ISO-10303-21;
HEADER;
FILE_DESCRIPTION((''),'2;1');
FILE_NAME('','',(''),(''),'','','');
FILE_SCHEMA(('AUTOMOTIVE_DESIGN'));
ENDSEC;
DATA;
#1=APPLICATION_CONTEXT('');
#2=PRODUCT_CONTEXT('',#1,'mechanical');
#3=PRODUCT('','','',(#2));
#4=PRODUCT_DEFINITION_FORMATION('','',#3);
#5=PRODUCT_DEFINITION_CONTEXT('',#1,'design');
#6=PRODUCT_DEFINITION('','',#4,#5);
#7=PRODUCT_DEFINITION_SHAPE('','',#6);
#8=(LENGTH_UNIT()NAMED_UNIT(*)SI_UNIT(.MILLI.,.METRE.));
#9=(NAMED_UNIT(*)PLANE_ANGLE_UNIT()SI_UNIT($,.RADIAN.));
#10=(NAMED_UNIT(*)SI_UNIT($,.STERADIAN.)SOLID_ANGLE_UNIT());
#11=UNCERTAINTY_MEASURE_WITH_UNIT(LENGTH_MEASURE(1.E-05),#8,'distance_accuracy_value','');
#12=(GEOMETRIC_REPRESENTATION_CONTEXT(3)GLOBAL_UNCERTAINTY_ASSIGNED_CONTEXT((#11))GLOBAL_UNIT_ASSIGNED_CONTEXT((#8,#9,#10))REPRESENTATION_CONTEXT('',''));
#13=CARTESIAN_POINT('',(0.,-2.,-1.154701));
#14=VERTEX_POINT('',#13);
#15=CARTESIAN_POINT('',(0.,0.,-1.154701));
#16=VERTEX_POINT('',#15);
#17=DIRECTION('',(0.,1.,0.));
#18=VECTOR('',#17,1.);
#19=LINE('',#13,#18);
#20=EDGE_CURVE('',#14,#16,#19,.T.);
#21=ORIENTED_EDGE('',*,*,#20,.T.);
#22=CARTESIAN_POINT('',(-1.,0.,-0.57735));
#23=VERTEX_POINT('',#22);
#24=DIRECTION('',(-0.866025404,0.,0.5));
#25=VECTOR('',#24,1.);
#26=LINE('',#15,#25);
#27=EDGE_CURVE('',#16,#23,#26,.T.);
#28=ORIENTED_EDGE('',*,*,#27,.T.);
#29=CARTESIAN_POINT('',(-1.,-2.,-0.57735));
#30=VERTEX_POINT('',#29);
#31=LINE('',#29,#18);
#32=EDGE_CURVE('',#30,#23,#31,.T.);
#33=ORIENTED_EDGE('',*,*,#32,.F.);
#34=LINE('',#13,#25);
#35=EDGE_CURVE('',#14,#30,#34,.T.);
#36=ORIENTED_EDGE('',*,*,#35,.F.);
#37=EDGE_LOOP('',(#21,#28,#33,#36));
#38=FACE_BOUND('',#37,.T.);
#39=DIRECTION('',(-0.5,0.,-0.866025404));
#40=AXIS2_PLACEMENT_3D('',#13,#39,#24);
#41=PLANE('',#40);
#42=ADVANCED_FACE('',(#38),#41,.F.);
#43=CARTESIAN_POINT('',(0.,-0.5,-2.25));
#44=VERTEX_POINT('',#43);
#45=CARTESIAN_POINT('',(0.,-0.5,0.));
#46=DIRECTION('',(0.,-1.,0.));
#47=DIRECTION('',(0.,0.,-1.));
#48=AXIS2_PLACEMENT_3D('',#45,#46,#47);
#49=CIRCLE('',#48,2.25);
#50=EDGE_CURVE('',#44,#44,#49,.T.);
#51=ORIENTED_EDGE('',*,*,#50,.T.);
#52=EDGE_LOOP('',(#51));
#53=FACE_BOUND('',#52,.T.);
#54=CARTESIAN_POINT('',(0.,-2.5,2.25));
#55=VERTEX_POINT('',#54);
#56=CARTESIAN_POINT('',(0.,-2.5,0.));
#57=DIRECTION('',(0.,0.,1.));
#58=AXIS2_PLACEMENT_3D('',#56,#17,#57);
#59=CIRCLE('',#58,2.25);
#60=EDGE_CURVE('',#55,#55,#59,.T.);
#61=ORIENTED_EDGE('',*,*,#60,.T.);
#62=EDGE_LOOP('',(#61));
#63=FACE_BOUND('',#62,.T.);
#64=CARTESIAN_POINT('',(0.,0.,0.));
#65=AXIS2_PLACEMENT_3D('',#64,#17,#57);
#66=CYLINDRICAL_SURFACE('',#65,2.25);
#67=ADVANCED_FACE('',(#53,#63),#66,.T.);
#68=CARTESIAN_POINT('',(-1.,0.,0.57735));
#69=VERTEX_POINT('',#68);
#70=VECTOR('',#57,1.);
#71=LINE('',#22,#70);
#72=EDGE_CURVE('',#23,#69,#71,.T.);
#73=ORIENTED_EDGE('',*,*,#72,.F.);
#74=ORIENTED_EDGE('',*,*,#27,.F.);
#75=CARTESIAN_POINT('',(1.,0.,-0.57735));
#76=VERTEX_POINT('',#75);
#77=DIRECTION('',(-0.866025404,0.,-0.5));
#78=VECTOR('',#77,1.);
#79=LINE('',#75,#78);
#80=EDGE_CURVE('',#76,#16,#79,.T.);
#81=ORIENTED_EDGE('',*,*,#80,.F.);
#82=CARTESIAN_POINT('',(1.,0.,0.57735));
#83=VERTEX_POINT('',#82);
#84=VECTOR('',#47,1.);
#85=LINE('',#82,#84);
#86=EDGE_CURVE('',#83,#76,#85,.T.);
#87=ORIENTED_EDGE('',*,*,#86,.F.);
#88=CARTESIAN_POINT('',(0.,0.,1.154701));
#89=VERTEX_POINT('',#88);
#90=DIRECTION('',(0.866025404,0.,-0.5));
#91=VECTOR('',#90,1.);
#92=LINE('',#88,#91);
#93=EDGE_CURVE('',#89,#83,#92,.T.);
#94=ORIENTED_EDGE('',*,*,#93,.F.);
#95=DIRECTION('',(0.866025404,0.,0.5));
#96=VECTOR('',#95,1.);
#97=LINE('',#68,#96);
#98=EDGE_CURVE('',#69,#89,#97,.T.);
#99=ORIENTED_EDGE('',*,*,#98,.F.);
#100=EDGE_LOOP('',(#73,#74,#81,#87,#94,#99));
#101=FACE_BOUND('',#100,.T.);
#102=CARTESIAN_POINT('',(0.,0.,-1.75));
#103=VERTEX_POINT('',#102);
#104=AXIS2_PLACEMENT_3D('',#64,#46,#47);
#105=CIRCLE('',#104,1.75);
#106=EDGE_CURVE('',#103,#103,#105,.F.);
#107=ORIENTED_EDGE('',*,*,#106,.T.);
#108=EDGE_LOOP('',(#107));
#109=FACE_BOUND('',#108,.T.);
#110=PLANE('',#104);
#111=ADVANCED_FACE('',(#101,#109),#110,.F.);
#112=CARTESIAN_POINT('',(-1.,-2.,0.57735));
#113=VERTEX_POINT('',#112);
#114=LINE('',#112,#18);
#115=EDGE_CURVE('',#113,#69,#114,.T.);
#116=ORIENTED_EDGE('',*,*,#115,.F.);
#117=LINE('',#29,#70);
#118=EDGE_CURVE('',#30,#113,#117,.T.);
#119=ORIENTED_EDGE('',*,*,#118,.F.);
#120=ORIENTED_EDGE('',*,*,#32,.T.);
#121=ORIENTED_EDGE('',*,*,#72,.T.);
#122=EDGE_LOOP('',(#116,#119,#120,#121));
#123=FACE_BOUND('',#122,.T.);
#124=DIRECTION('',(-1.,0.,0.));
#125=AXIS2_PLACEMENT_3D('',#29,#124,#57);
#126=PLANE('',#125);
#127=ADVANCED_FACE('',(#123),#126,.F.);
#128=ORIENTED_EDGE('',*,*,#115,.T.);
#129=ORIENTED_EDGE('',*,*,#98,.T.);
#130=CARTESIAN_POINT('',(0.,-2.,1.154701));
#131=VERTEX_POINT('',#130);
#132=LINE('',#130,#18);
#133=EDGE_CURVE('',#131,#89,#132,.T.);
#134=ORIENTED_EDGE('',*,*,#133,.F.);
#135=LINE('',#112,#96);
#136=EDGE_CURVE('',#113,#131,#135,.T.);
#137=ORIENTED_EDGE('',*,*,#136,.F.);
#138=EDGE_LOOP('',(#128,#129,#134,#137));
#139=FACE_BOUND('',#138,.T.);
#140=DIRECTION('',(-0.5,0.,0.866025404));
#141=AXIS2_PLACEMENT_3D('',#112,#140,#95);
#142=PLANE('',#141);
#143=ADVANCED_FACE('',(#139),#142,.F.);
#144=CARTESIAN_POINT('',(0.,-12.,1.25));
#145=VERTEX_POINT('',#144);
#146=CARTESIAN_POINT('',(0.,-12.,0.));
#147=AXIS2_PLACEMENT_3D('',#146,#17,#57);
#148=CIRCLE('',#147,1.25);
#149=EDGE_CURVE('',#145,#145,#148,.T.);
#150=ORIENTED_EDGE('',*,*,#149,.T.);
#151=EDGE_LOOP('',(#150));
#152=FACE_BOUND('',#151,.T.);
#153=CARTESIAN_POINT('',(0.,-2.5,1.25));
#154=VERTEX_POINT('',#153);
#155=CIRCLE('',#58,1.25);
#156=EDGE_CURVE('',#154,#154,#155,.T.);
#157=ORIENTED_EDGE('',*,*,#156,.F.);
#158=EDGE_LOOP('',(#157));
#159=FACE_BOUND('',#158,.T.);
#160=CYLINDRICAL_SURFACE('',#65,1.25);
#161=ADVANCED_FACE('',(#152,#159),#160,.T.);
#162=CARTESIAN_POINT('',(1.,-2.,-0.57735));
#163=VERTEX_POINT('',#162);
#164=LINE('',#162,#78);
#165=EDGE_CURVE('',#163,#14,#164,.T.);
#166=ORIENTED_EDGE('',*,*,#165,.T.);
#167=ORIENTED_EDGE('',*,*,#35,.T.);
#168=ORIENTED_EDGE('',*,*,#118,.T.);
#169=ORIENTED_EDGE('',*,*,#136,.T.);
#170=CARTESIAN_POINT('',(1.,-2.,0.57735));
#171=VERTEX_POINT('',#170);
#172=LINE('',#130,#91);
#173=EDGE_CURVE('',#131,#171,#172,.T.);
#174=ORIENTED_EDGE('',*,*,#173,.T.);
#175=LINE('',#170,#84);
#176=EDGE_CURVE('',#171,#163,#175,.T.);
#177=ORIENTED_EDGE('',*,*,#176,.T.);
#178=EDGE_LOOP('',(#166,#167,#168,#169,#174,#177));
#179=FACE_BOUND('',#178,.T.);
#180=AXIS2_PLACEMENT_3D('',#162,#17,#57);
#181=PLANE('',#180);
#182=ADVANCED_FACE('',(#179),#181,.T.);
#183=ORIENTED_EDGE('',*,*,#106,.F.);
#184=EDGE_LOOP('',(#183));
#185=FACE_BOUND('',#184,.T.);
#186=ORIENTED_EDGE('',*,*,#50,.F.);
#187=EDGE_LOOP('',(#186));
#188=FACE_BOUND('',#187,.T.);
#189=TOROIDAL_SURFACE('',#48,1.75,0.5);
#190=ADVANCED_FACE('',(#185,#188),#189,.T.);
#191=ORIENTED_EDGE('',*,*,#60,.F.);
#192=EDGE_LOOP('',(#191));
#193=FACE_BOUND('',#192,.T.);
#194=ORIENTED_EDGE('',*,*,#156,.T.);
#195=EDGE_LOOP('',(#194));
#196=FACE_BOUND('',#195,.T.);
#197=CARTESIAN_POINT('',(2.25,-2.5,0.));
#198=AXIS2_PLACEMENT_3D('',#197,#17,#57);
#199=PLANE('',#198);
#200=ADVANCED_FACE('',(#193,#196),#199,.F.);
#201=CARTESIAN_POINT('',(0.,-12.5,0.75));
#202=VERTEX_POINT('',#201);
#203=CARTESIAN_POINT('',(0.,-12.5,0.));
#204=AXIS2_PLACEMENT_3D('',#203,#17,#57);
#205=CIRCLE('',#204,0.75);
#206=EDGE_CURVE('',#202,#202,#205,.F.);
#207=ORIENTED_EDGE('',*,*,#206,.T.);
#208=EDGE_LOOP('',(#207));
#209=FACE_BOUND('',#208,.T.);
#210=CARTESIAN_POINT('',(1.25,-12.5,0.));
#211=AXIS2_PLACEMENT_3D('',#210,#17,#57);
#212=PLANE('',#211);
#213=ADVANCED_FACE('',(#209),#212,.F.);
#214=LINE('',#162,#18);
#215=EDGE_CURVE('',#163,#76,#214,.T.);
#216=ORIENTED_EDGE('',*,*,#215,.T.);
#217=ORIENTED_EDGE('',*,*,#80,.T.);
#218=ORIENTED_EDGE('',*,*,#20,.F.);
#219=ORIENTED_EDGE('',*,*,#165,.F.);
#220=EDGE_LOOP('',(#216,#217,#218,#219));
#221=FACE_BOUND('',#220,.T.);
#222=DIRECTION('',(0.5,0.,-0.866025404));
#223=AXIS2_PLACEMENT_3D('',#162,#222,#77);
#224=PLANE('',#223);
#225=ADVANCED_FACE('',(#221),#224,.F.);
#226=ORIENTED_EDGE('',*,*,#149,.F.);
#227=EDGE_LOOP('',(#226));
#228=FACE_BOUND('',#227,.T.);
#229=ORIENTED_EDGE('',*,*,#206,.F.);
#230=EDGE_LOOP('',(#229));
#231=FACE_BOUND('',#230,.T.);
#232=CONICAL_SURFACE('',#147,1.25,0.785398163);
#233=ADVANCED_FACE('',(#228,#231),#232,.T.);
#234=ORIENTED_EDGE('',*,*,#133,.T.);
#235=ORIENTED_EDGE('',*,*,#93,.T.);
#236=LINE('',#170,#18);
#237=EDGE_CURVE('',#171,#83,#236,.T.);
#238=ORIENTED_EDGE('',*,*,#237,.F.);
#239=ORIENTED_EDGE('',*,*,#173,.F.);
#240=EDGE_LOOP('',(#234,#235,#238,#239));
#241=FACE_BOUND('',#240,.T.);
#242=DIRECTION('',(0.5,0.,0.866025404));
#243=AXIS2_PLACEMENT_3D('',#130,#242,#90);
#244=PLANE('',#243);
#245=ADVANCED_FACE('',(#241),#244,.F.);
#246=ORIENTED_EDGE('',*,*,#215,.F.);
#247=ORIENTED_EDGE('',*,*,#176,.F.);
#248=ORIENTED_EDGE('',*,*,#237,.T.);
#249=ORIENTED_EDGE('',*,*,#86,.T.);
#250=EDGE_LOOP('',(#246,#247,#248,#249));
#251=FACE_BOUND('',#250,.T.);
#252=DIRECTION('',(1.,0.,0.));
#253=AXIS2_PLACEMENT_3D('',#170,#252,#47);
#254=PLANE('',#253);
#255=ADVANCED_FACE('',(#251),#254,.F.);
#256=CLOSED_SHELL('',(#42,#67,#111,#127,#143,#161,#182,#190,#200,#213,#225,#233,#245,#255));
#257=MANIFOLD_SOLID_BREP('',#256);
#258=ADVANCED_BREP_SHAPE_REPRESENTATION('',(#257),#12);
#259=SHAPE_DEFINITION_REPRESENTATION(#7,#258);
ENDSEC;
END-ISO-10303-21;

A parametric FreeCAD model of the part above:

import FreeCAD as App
import Part
import Sketcher

V = App.Vector
Q = App.Units.Quantity


def edges_at(feature, points):
    """Names of the edges that pass closest to the given points."""
    edges = feature.Shape.Edges
    near = lambda p: min(range(len(edges)), key=lambda i: edges[i].distToShape(Part.Vertex(*p))[0])
    return sorted({f"Edge{near(p) + 1}" for p in points})

doc = App.newDocument("Part")
params = doc.addObject("Spreadsheet::Sheet", "Params")
for row, (alias, value) in enumerate([
    ("sketch1_width", "1 mm"),
    ("sketch1_height", "10 mm"),
    ("sketch1_height2", "12.5 mm"),
    ("sketch1_width2", "2.25 mm"),
    ("revolution_angle", "360 deg"),
    ("pocket1_length", "2 mm"),
    ("chamfer_size", "0.5 mm"),
    ("fillet_radius", "0.5 mm"),
], start=1):
    params.set(f"A{row}", alias)
    params.set(f"B{row}", "=" + value)
    params.setAlias(f"B{row}", alias)

body = doc.addObject("PartDesign::Body", "Body")

# Sketch on XY plane
sketch1 = doc.addObject("Sketcher::SketchObject", "Sketch")
body.addObject(sketch1)
sketch1.AttachmentSupport = (doc.XY_Plane, [""])
sketch1.MapMode = "FlatFace"
sketch1.addGeometry([
    Part.LineSegment(V(2.2, 0, 0), V(0, 0, 0)),  # 0
    Part.LineSegment(V(0, 0, 0), V(0, -12.5, 0)),  # 1
    Part.LineSegment(V(0, -12.5, 0), V(1.2, -12.5, 0)),  # 2
    Part.LineSegment(V(1.2, -12.5, 0), V(1.2, -2.5, 0)),  # 3
    Part.LineSegment(V(1.2, -2.5, 0), V(2.2, -2.5, 0)),  # 4
    Part.LineSegment(V(2.2, -2.5, 0), V(2.2, 0, 0)),  # 5
], False)
sketch1.addConstraint([
    Sketcher.Constraint("Coincident", 0, 2, 1, 1),
    Sketcher.Constraint("Coincident", 1, 2, 2, 1),
    Sketcher.Constraint("Coincident", 2, 2, 3, 1),
    Sketcher.Constraint("Coincident", 3, 2, 4, 1),
    Sketcher.Constraint("Coincident", 4, 2, 5, 1),
    Sketcher.Constraint("Coincident", 5, 2, 0, 1),
    Sketcher.Constraint("Horizontal", 0),
    Sketcher.Constraint("Vertical", 1),
    Sketcher.Constraint("Horizontal", 2),
    Sketcher.Constraint("Vertical", 3),
    Sketcher.Constraint("Horizontal", 4),
    Sketcher.Constraint("Vertical", 5),
    Sketcher.Constraint("Coincident", 0, 2, -1, 1),
    Sketcher.Constraint("DistanceX", 4, 1, 4, 2, 1.0),
    Sketcher.Constraint("DistanceY", 3, 1, 3, 2, 10.0),
    Sketcher.Constraint("DistanceY", 1, 2, 1, 1, 12.5),
    Sketcher.Constraint("DistanceX", 0, 2, 0, 1, 2.25),
])
sketch1.setExpression("Constraints[13]", "Params.sketch1_width")
sketch1.setExpression("Constraints[14]", "Params.sketch1_height")
sketch1.setExpression("Constraints[15]", "Params.sketch1_height2")
sketch1.setExpression("Constraints[16]", "Params.sketch1_width2")
revolution = doc.addObject("PartDesign::Revolution", "Revolution")
body.addObject(revolution)
revolution.Profile = sketch1
revolution.ReferenceAxis = (sketch1, ["V_Axis"])
revolution.setExpression("Angle", "Params.revolution_angle")

# Sketch on XZ plane
sketch2 = doc.addObject("Sketcher::SketchObject", "Sketch001")
body.addObject(sketch2)
sketch2.AttachmentSupport = (doc.XZ_Plane, [""])
sketch2.MapMode = "FlatFace"
sketch2.addGeometry([
    Part.LineSegment(V(1, -0.6, 0), V(0, -1.2, 0)),  # 0
    Part.LineSegment(V(0, -1.2, 0), V(-1, -0.6, 0)),  # 1
    Part.LineSegment(V(-1, -0.6, 0), V(-1, 0.6, 0)),  # 2
    Part.LineSegment(V(-1, 0.6, 0), V(0, 1.2, 0)),  # 3
    Part.LineSegment(V(0, 1.2, 0), V(1, 0.6, 0)),  # 4
    Part.LineSegment(V(1, 0.6, 0), V(1, -0.6, 0)),  # 5
], False)
sketch2.addConstraint([
    Sketcher.Constraint("Coincident", 0, 2, 1, 1),
    Sketcher.Constraint("Coincident", 1, 2, 2, 1),
    Sketcher.Constraint("Coincident", 2, 2, 3, 1),
    Sketcher.Constraint("Coincident", 3, 2, 4, 1),
    Sketcher.Constraint("Coincident", 4, 2, 5, 1),
    Sketcher.Constraint("Coincident", 5, 2, 0, 1),
    Sketcher.Constraint("Vertical", 2),
    Sketcher.Constraint("Vertical", 5),
    Sketcher.Constraint("Symmetric", 0, 2, 3, 2, -1, 1),
    Sketcher.Constraint("Symmetric", 1, 2, 4, 2, -1, 1),
    Sketcher.Constraint("PointOnObject", 0, 2, -2),
    Sketcher.Constraint("Parallel", 0, 3),
    Sketcher.Constraint("Horizontal", 2, 2, 4, 2),
    Sketcher.Constraint("Angle", 0, Q("-150 deg")),
    Sketcher.Constraint("DistanceX", 1, 2, -1, 1, 1.0),
    Sketcher.Constraint("DistanceY", 2, 1, 2, 2, 1.154701),
])
pocket1 = doc.addObject("PartDesign::Pocket", "Pocket")
body.addObject(pocket1)
pocket1.Profile = sketch2
pocket1.setExpression("Length", "Params.pocket1_length")
pocket1.Reversed = True
doc.recompute()

chamfer = doc.addObject("PartDesign::Chamfer", "Chamfer")
body.addObject(chamfer)
chamfer.Base = (pocket1, edges_at(pocket1, [(-1.25, -12.5, 0)]))
chamfer.setExpression("Size", "Params.chamfer_size")
doc.recompute()

fillet = doc.addObject("PartDesign::Fillet", "Fillet")
body.addObject(fillet)
fillet.Base = (chamfer, edges_at(chamfer, [(-2.25, 0, 0)]))
fillet.setExpression("Radius", "Params.fillet_radius")

doc.recompute()
